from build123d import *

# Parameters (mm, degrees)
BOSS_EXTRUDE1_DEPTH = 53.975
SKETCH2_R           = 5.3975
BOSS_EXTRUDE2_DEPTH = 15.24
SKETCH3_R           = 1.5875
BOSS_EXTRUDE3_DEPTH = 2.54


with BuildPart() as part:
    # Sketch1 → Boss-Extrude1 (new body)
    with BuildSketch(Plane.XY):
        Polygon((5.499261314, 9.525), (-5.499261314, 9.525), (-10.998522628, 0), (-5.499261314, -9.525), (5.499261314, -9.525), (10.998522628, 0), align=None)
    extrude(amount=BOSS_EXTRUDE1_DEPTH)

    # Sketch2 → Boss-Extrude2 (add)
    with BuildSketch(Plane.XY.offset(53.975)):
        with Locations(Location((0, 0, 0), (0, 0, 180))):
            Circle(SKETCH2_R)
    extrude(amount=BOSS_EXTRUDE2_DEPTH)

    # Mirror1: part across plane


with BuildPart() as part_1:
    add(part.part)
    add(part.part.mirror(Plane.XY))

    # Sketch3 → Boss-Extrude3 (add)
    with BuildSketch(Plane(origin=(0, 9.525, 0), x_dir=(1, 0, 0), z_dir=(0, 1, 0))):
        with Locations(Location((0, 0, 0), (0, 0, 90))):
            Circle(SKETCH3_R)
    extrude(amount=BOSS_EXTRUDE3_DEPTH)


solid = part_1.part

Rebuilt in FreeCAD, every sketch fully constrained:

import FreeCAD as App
import Part
import Sketcher
Q = App.Units.Quantity


def add_polygon(sketch, points):
    """Adds a closed chain of lines whose ends are joined by coincident constraints."""
    first, n = sketch.GeometryCount, len(points)
    for a, b in zip(points, points[1:] + points[:1]):
        sketch.addGeometry(Part.LineSegment(App.Vector(*a, 0), App.Vector(*b, 0)), False)
    for i in range(n):
        sketch.addConstraint(Sketcher.Constraint("Coincident", first + i, 2, first + (i + 1) % n, 1))

doc = App.newDocument("Part")
body = doc.addObject("PartDesign::Body", "Body")

# Sketch on XY plane
sketch1 = body.newObject("Sketcher::SketchObject", "Sketch")
sketch1.AttachmentSupport = (doc.getObject("XY_Plane"), [""])
sketch1.MapMode = "FlatFace"
add_polygon(sketch1, [(5, 10), (-5, 10), (-11, 0), (-5, -10), (5, -10), (11, 0)])  # lines 0-5
sketch1.addConstraint([
    Sketcher.Constraint("Horizontal", 0),
    Sketcher.Constraint("Horizontal", 3),
    Sketcher.Constraint("Symmetric", 0, 2, 3, 2, -1, 1),
    Sketcher.Constraint("Symmetric", 1, 2, 4, 2, -1, 1),
    Sketcher.Constraint("PointOnObject", 1, 2, -1),
    Sketcher.Constraint("Parallel", 2, 5),
    Sketcher.Constraint("Vertical", 0, 2, 2, 2),
    Sketcher.Constraint("Angle", 1, Q("-120 deg")),
    Sketcher.Constraint("DistanceY", 2, 2, 0, 2, Q("0.75 in")),
    Sketcher.Constraint("DistanceX", 0, 2, 0, 1, 10.998523),
])
pad1 = body.newObject("PartDesign::Pad", "Pad")
pad1.Profile = sketch1
pad1.Length = Q("2.125 in")

# Sketch on XY plane
sketch2 = body.newObject("Sketcher::SketchObject", "Sketch001")
sketch2.AttachmentSupport = (doc.getObject("XY_Plane"), [""])
sketch2.MapMode = "FlatFace"
sketch2.AttachmentOffset = App.Placement(App.Vector(0, 0, 2.125 * 25.4), App.Rotation())
sketch2.addGeometry(Part.Circle(App.Vector(0, 0, 0), App.Vector(0, 0, 1), 5), False)
sketch2.addConstraint([
    Sketcher.Constraint("Coincident", 0, 3, -1, 1),
    Sketcher.Constraint("Diameter", 0, Q("0.425 in")),
])
pad2 = body.newObject("PartDesign::Pad", "Pad001")
pad2.Profile = sketch2
pad2.Length = Q("0.6 in")
body2 = doc.addObject("PartDesign::Body", "Body001")
doc.recompute()

body2.BaseFeature = body
doc.recompute()

mirroring = doc.addObject("Part::Mirroring", "Mirroring")
mirroring.Source = body
mirroring.Base = App.Vector(0, 0, 0)
mirroring.Normal = App.Vector(0, 0, 1)
body3 = doc.addObject("PartDesign::Body", "Body002")
body3.BaseFeature = mirroring
boolean = body2.newObject("PartDesign::Boolean", "Boolean")
boolean.Type = "Fuse"
boolean.addObjects([body3])
doc.recompute()

# Sketch on XZ plane
sketch3 = body2.newObject("Sketcher::SketchObject", "Sketch002")
sketch3.AttachmentSupport = (doc.getObject("XZ_Plane001"), [""])
sketch3.MapMode = "FlatFace"
sketch3.AttachmentOffset = App.Placement(App.Vector(0, 0, -0.375 * 25.4), App.Rotation())
sketch3.addGeometry(Part.Circle(App.Vector(0, 0, 0), App.Vector(0, 0, 1), 1.6), False)
sketch3.addConstraint([
    Sketcher.Constraint("Coincident", 0, 3, -1, 1),
    Sketcher.Constraint("Diameter", 0, Q("0.125 in")),
])
pad3 = body2.newObject("PartDesign::Pad", "Pad002")
pad3.Profile = sketch3
pad3.Length = Q("0.1 in")
pad3.Reversed = True
mirroring.Visibility = False

doc.recompute()
